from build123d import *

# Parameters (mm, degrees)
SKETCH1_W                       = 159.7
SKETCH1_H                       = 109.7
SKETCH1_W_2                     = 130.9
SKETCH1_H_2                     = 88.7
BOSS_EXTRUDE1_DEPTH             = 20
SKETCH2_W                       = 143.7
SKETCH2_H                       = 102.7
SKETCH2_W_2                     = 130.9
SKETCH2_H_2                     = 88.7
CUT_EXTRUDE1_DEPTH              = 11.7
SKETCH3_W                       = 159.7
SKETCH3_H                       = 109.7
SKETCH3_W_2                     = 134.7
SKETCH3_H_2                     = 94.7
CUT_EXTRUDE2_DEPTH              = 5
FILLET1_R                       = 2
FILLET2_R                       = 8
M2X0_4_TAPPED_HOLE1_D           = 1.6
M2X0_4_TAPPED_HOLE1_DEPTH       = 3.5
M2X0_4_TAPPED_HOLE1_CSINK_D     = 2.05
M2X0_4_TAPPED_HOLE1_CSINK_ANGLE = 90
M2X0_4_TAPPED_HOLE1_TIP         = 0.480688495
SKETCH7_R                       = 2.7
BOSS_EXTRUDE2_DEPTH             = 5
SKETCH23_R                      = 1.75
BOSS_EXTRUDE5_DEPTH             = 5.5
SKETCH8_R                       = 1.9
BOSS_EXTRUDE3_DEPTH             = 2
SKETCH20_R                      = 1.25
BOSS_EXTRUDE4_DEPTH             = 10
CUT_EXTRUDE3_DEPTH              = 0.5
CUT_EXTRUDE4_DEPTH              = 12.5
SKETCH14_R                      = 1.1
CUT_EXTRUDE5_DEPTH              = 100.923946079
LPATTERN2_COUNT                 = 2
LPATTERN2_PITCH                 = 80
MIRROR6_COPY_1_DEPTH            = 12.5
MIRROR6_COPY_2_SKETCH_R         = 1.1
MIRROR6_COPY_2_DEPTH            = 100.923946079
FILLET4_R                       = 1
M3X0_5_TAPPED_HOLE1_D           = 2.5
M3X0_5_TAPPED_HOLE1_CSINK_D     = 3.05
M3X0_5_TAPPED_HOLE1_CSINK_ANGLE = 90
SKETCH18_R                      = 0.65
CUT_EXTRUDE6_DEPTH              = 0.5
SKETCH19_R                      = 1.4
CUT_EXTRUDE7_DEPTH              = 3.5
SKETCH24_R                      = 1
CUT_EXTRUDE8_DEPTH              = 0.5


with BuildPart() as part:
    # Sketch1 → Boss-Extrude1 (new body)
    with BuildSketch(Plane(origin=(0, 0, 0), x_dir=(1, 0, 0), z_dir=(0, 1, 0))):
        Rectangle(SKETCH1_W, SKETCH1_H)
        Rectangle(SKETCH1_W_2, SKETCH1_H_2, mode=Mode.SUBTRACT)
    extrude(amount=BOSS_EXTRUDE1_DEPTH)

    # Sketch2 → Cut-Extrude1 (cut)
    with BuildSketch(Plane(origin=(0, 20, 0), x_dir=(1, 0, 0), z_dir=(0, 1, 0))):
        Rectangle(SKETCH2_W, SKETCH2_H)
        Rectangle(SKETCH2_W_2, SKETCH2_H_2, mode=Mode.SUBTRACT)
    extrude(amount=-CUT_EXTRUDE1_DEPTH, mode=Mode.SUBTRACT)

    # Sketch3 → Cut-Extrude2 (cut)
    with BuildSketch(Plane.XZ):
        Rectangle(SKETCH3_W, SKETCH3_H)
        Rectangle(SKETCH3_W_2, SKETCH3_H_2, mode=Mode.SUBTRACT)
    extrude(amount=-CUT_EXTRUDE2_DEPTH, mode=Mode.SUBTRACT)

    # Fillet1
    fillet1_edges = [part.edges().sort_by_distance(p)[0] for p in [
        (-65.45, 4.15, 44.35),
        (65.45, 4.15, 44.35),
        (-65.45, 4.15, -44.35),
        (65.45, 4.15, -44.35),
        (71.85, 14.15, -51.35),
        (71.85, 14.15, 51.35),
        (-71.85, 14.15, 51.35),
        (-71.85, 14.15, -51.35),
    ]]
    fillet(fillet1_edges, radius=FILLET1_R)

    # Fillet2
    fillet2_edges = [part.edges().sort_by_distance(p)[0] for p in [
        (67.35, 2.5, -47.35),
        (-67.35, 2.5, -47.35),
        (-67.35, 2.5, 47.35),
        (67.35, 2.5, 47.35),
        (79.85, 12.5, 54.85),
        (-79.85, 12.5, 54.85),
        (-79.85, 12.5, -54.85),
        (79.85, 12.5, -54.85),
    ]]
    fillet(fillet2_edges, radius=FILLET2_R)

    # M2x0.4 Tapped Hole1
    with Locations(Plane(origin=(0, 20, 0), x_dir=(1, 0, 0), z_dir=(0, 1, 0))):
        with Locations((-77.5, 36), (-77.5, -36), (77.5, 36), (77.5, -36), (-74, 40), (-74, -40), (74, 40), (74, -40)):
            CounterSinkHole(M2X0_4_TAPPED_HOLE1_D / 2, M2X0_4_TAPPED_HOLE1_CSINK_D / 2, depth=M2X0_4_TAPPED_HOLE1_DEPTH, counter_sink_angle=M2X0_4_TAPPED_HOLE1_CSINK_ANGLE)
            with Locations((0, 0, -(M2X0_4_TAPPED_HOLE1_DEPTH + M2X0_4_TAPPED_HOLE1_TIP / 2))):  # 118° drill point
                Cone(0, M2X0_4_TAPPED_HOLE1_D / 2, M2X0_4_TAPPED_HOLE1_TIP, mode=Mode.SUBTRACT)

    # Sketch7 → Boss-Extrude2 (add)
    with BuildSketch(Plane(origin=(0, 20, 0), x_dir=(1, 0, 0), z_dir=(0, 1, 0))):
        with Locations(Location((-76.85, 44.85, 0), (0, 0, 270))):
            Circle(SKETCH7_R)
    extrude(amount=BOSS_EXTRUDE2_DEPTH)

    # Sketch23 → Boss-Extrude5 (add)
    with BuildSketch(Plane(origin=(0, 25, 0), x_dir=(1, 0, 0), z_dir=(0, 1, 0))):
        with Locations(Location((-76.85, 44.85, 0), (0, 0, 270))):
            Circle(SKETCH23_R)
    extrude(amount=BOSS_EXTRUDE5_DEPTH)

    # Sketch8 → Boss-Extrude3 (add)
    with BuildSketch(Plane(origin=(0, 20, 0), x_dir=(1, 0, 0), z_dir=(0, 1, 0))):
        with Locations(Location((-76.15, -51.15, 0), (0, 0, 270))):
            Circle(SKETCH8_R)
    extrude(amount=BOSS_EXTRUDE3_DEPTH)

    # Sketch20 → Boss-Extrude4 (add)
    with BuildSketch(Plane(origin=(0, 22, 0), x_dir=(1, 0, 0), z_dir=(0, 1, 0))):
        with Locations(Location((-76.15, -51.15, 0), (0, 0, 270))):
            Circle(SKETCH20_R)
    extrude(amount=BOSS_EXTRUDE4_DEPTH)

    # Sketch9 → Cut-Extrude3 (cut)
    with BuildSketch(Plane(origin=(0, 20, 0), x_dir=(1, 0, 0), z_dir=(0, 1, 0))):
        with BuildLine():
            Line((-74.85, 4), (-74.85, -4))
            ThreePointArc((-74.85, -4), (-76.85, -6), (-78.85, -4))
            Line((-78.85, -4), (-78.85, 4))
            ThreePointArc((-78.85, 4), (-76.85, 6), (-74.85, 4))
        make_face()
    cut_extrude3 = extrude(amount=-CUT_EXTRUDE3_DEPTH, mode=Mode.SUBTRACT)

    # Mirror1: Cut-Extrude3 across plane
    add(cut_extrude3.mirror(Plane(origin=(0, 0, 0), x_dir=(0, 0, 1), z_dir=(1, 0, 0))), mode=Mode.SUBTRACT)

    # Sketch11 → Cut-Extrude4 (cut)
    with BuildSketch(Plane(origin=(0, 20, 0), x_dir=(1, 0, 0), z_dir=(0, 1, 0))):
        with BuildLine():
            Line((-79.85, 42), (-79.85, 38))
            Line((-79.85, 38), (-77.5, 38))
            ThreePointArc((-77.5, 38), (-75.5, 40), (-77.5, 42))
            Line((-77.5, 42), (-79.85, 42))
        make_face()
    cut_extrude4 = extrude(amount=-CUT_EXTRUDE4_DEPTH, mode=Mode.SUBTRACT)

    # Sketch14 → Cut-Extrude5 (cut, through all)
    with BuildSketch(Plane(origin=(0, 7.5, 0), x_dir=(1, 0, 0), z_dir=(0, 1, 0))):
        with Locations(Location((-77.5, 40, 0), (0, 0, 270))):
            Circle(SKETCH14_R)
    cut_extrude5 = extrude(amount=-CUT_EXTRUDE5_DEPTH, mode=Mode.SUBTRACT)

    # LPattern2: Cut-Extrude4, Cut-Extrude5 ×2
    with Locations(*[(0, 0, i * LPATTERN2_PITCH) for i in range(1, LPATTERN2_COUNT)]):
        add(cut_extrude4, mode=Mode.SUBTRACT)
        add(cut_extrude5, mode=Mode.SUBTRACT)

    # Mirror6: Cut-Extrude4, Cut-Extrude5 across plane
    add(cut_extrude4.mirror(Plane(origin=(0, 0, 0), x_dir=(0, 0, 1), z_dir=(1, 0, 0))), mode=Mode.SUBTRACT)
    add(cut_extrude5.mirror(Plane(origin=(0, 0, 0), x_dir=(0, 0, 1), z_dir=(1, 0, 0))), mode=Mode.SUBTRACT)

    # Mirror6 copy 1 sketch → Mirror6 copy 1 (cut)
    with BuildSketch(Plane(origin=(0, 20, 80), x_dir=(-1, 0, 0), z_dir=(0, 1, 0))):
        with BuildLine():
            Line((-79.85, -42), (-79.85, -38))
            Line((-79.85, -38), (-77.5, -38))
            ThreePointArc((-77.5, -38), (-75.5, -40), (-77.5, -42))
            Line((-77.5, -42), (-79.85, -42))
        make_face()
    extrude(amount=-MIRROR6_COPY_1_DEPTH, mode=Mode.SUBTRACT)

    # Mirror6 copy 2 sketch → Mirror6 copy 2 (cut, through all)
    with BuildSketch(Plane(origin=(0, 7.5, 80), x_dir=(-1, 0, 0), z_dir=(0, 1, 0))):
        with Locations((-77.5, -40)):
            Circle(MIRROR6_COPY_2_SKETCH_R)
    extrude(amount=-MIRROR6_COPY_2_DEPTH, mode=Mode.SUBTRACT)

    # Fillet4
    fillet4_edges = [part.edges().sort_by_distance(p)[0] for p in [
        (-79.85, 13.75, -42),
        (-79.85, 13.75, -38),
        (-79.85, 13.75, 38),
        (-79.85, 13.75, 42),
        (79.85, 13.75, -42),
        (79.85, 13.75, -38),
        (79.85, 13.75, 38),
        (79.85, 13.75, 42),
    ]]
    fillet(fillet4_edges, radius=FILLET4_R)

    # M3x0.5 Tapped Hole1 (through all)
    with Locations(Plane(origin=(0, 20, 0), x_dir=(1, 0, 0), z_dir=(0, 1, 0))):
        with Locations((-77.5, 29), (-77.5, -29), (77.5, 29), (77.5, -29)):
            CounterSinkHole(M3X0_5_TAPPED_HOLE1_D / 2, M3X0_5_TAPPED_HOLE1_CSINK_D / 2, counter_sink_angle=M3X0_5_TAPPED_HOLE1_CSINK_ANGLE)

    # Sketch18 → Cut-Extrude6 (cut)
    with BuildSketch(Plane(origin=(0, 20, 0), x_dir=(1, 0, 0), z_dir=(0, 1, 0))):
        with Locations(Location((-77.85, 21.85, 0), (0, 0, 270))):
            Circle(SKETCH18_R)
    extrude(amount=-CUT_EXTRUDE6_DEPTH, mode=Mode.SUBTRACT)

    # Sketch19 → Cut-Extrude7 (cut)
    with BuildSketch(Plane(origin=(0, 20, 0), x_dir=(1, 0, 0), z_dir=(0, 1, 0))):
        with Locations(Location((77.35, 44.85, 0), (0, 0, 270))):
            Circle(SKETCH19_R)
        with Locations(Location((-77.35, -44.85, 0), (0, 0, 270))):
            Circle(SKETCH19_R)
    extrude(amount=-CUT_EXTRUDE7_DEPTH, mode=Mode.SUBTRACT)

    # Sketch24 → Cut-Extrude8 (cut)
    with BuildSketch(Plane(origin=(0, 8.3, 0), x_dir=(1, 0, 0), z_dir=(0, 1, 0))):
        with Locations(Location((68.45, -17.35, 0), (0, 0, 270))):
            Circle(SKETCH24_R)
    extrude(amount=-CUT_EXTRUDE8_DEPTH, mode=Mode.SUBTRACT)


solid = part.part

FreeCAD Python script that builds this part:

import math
import FreeCAD as App
import Part
import Sketcher
Q = App.Units.Quantity


def edges_at(feature, points):
    """Names of the edges that pass closest to the given points."""
    edges = feature.Shape.Edges
    near = lambda p: min(range(len(edges)), key=lambda i: edges[i].distToShape(Part.Vertex(*p))[0])
    return sorted({f"Edge{near(p) + 1}" for p in points})


def add_polygon(sketch, points):
    """Adds a closed chain of lines whose ends are joined by coincident constraints."""
    first, n = sketch.GeometryCount, len(points)
    for a, b in zip(points, points[1:] + points[:1]):
        sketch.addGeometry(Part.LineSegment(App.Vector(*a, 0), App.Vector(*b, 0)), False)
    for i in range(n):
        sketch.addConstraint(Sketcher.Constraint("Coincident", first + i, 2, first + (i + 1) % n, 1))

doc = App.newDocument("Part")
params = doc.addObject("Spreadsheet::Sheet", "Params")
for row, (alias, value) in enumerate([
    ("sketch1_width", "159.7 mm"),
    ("sketch1_width2", "130.9 mm"),
    ("sketch1_height", "109.7 mm"),
    ("sketch1_height2", "88.7 mm"),
    ("pad1_length", "20 mm"),
    ("sketch2_width", "143.7 mm"),
    ("sketch2_width2", "130.9 mm"),
    ("sketch2_height", "102.7 mm"),
    ("sketch2_height2", "88.7 mm"),
    ("pocket1_length", "11.7 mm"),
    ("sketch3_width", "159.7 mm"),
    ("sketch3_width2", "134.7 mm"),
    ("sketch3_height", "109.7 mm"),
    ("sketch3_height2", "94.7 mm"),
    ("pocket2_length", "5 mm"),
    ("fillet_radius", "2 mm"),
    ("fillet2_radius", "8 mm"),
    ("sketch4_diameter", "1.6 mm"),
    ("hole_diameter", "1.6 mm"),
    ("hole_depth", "3.5 mm"),
    ("hole_csink_diameter", "2.05 mm"),
    ("sketch5_diameter", "5.4 mm"),
    ("pad2_length", "5 mm"),
    ("sketch6_diameter", "3.5 mm"),
    ("pad3_length", "5.5 mm"),
    ("sketch7_diameter", "3.8 mm"),
    ("pad4_length", "2 mm"),
    ("sketch8_diameter", "2.5 mm"),
    ("pad5_length", "10 mm"),
    ("sketch9_radius", "2 mm"),
    ("sketch9_height", "8 mm"),
    ("pocket3_length", "0.5 mm"),
    ("sketch10_radius", "2 mm"),
    ("sketch10_width", "2.35 mm"),
    ("pocket4_length", "12.5 mm"),
    ("sketch11_diameter", "2.2 mm"),
    ("linearpattern_pitch", "80 mm"),
    ("sketch12_radius", "2 mm"),
    ("sketch12_width", "2.35 mm"),
    ("pocket6_length", "12.5 mm"),
    ("sketch13_diameter", "2.2 mm"),
    ("fillet3_radius", "1 mm"),
    ("sketch14_diameter", "2.5 mm"),
    ("hole2_diameter", "2.5 mm"),
    ("hole2_csink_diameter", "3.05 mm"),
    ("sketch15_diameter", "1.3 mm"),
    ("pocket8_length", "0.5 mm"),
    ("sketch16_diameter", "2.8 mm"),
    ("pocket9_length", "3.5 mm"),
    ("sketch17_diameter", "2 mm"),
    ("pocket10_length", "0.5 mm"),
], start=1):
    params.set(f"A{row}", alias)
    params.set(f"B{row}", "=" + value)
    params.setAlias(f"B{row}", alias)

body = doc.addObject("PartDesign::Body", "Body")

# Sketch on XZ plane
sketch1 = body.newObject("Sketcher::SketchObject", "Sketch")
sketch1.AttachmentSupport = (doc.getObject("XZ_Plane"), [""])
sketch1.MapMode = "FlatFace"
add_polygon(sketch1, [(-79.85, -54.85), (-79.85, 54.85), (79.85, 54.85), (79.85, -54.85)])  # lines 0-3
add_polygon(sketch1, [(65.45, 44.35), (-65.45, 44.35), (-65.45, -44.35), (65.45, -44.35)])  # lines 4-7
sketch1.addConstraint(Sketcher.Constraint("Vertical", 0))
sketch1.addConstraint(Sketcher.Constraint("Horizontal", 1))
sketch1.addConstraint(Sketcher.Constraint("Vertical", 2))
sketch1.addConstraint(Sketcher.Constraint("Horizontal", 3))
sketch1.addConstraint(Sketcher.Constraint("Horizontal", 4))
sketch1.addConstraint(Sketcher.Constraint("Vertical", 5))
sketch1.addConstraint(Sketcher.Constraint("Horizontal", 6))
sketch1.addConstraint(Sketcher.Constraint("Vertical", 7))
sketch1.addConstraint(Sketcher.Constraint("Symmetric", 0, 2, 2, 2, -1, 1))
sketch1.addConstraint(Sketcher.Constraint("Symmetric", 4, 2, 6, 2, -1, 1))
sketch1.addConstraint(Sketcher.Constraint("DistanceX", 1, 1, 1, 2, Q("159.7 mm")))
sketch1.addConstraint(Sketcher.Constraint("DistanceX", 4, 2, 4, 1, Q("130.9 mm")))
sketch1.addConstraint(Sketcher.Constraint("DistanceY", 0, 1, 0, 2, Q("109.7 mm")))
sketch1.addConstraint(Sketcher.Constraint("DistanceY", 5, 2, 5, 1, Q("88.7 mm")))
sketch1.setExpression("Constraints[18]", "Params.sketch1_width")
sketch1.setExpression("Constraints[19]", "Params.sketch1_width2")
sketch1.setExpression("Constraints[20]", "Params.sketch1_height")
sketch1.setExpression("Constraints[21]", "Params.sketch1_height2")
pad1 = body.newObject("PartDesign::Pad", "Pad")
pad1.Profile = sketch1
pad1.setExpression("Length", "Params.pad1_length")
pad1.Reversed = True

# Sketch on XZ plane
sketch2 = body.newObject("Sketcher::SketchObject", "Sketch001")
sketch2.AttachmentSupport = (doc.getObject("XZ_Plane"), [""])
sketch2.MapMode = "FlatFace"
sketch2.AttachmentOffset = App.Placement(App.Vector(0, 0, -20), App.Rotation())
add_polygon(sketch2, [(-71.85, -51.35), (-71.85, 51.35), (71.85, 51.35), (71.85, -51.35)])  # lines 0-3
add_polygon(sketch2, [(65.45, 44.35), (-65.45, 44.35), (-65.45, -44.35), (65.45, -44.35)])  # lines 4-7
sketch2.addConstraint(Sketcher.Constraint("Vertical", 0))
sketch2.addConstraint(Sketcher.Constraint("Horizontal", 1))
sketch2.addConstraint(Sketcher.Constraint("Vertical", 2))
sketch2.addConstraint(Sketcher.Constraint("Horizontal", 3))
sketch2.addConstraint(Sketcher.Constraint("Horizontal", 4))
sketch2.addConstraint(Sketcher.Constraint("Vertical", 5))
sketch2.addConstraint(Sketcher.Constraint("Horizontal", 6))
sketch2.addConstraint(Sketcher.Constraint("Vertical", 7))
sketch2.addConstraint(Sketcher.Constraint("Symmetric", 0, 2, 2, 2, -1, 1))
sketch2.addConstraint(Sketcher.Constraint("Symmetric", 4, 2, 6, 2, -1, 1))
sketch2.addConstraint(Sketcher.Constraint("DistanceX", 1, 1, 1, 2, Q("143.7 mm")))
sketch2.addConstraint(Sketcher.Constraint("DistanceX", 4, 2, 4, 1, Q("130.9 mm")))
sketch2.addConstraint(Sketcher.Constraint("DistanceY", 0, 1, 0, 2, Q("102.7 mm")))
sketch2.addConstraint(Sketcher.Constraint("DistanceY", 5, 2, 5, 1, Q("88.7 mm")))
sketch2.setExpression("Constraints[18]", "Params.sketch2_width")
sketch2.setExpression("Constraints[19]", "Params.sketch2_width2")
sketch2.setExpression("Constraints[20]", "Params.sketch2_height")
sketch2.setExpression("Constraints[21]", "Params.sketch2_height2")
pocket1 = body.newObject("PartDesign::Pocket", "Pocket")
pocket1.Profile = sketch2
pocket1.setExpression("Length", "Params.pocket1_length")
pocket1.Reversed = True

# Sketch on XZ plane
sketch3 = body.newObject("Sketcher::SketchObject", "Sketch002")
sketch3.AttachmentSupport = (doc.getObject("XZ_Plane"), [""])
sketch3.MapMode = "FlatFace"
add_polygon(sketch3, [(-79.85, 54.85), (-79.85, -54.85), (79.85, -54.85), (79.85, 54.85)])  # lines 0-3
add_polygon(sketch3, [(67.35, -47.35), (-67.35, -47.35), (-67.35, 47.35), (67.35, 47.35)])  # lines 4-7
sketch3.addConstraint(Sketcher.Constraint("Vertical", 0))
sketch3.addConstraint(Sketcher.Constraint("Horizontal", 1))
sketch3.addConstraint(Sketcher.Constraint("Vertical", 2))
sketch3.addConstraint(Sketcher.Constraint("Horizontal", 3))
sketch3.addConstraint(Sketcher.Constraint("Horizontal", 4))
sketch3.addConstraint(Sketcher.Constraint("Vertical", 5))
sketch3.addConstraint(Sketcher.Constraint("Horizontal", 6))
sketch3.addConstraint(Sketcher.Constraint("Vertical", 7))
sketch3.addConstraint(Sketcher.Constraint("Symmetric", 0, 2, 2, 2, -1, 1))
sketch3.addConstraint(Sketcher.Constraint("Symmetric", 4, 2, 6, 2, -1, 1))
sketch3.addConstraint(Sketcher.Constraint("DistanceX", 1, 1, 1, 2, Q("159.7 mm")))
sketch3.addConstraint(Sketcher.Constraint("DistanceX", 4, 2, 4, 1, Q("134.7 mm")))
sketch3.addConstraint(Sketcher.Constraint("DistanceY", 0, 2, 0, 1, Q("109.7 mm")))
sketch3.addConstraint(Sketcher.Constraint("DistanceY", 5, 1, 5, 2, Q("94.7 mm")))
sketch3.setExpression("Constraints[18]", "Params.sketch3_width")
sketch3.setExpression("Constraints[19]", "Params.sketch3_width2")
sketch3.setExpression("Constraints[20]", "Params.sketch3_height")
sketch3.setExpression("Constraints[21]", "Params.sketch3_height2")
pocket2 = body.newObject("PartDesign::Pocket", "Pocket001")
pocket2.Profile = sketch3
pocket2.setExpression("Length", "Params.pocket2_length")
doc.recompute()

fillet = body.newObject("PartDesign::Fillet", "Fillet")
fillet.Base = (pocket2, edges_at(pocket2, [
    (-65.45, 4.15, 44.35),
    (65.45, 4.15, 44.35),
    (-65.45, 4.15, -44.35),
    (65.45, 4.15, -44.35),
    (71.85, 14.15, -51.35),
    (71.85, 14.15, 51.35),
    (-71.85, 14.15, 51.35),
    (-71.85, 14.15, -51.35),
]))
fillet.setExpression("Radius", "Params.fillet_radius")
doc.recompute()

fillet2 = body.newObject("PartDesign::Fillet", "Fillet001")
fillet2.Base = (fillet, edges_at(fillet, [
    (67.35, 2.5, -47.35),
    (-67.35, 2.5, -47.35),
    (-67.35, 2.5, 47.35),
    (67.35, 2.5, 47.35),
    (79.85, 12.5, 54.85),
    (-79.85, 12.5, 54.85),
    (-79.85, 12.5, -54.85),
    (79.85, 12.5, -54.85),
]))
fillet2.setExpression("Radius", "Params.fillet2_radius")

# Sketch on XZ plane
sketch4 = body.newObject("Sketcher::SketchObject", "Sketch003")
sketch4.AttachmentSupport = (doc.getObject("XZ_Plane"), [""])
sketch4.MapMode = "FlatFace"
sketch4.AttachmentOffset = App.Placement(App.Vector(0, 0, -20), App.Rotation())
sketch4.addGeometry(Part.Circle(App.Vector(-77.5, -36, 0), App.Vector(0, 0, 1), 0.8), False)
sketch4.addGeometry(Part.Circle(App.Vector(-77.5, 36, 0), App.Vector(0, 0, 1), 0.8), False)
sketch4.addGeometry(Part.Circle(App.Vector(77.5, -36, 0), App.Vector(0, 0, 1), 0.8), False)
sketch4.addGeometry(Part.Circle(App.Vector(77.5, 36, 0), App.Vector(0, 0, 1), 0.8), False)
sketch4.addGeometry(Part.Circle(App.Vector(-74, -40, 0), App.Vector(0, 0, 1), 0.8), False)
sketch4.addGeometry(Part.Circle(App.Vector(-74, 40, 0), App.Vector(0, 0, 1), 0.8), False)
sketch4.addGeometry(Part.Circle(App.Vector(74, -40, 0), App.Vector(0, 0, 1), 0.8), False)
sketch4.addGeometry(Part.Circle(App.Vector(74, 40, 0), App.Vector(0, 0, 1), 0.8), False)
sketch4.addConstraint(Sketcher.Constraint("Equal", 0, 1))
sketch4.addConstraint(Sketcher.Constraint("Equal", 1, 2))
sketch4.addConstraint(Sketcher.Constraint("Equal", 2, 3))
sketch4.addConstraint(Sketcher.Constraint("Equal", 3, 4))
sketch4.addConstraint(Sketcher.Constraint("Equal", 4, 5))
sketch4.addConstraint(Sketcher.Constraint("Equal", 5, 6))
sketch4.addConstraint(Sketcher.Constraint("Equal", 6, 7))
sketch4.addConstraint(Sketcher.Constraint("Symmetric", 1, 3, 2, 3, -1, 1))
sketch4.addConstraint(Sketcher.Constraint("Symmetric", 0, 3, 3, 3, -1, 1))
sketch4.addConstraint(Sketcher.Constraint("Symmetric", 5, 3, 6, 3, -1, 1))
sketch4.addConstraint(Sketcher.Constraint("Symmetric", 4, 3, 7, 3, -1, 1))
sketch4.addConstraint(Sketcher.Constraint("Symmetric", 0, 3, 2, 3, -2))
sketch4.addConstraint(Sketcher.Constraint("Symmetric", 4, 3, 6, 3, -2))
sketch4.addConstraint(Sketcher.Constraint("Diameter", 0, Q("1.6 mm")))
sketch4.addConstraint(Sketcher.Constraint("DistanceY", 0, 3, -1, 1, Q("36 mm")))
sketch4.addConstraint(Sketcher.Constraint("DistanceX", 4, 3, -1, 1, Q("74 mm")))
sketch4.addConstraint(Sketcher.Constraint("DistanceY", 4, 3, -1, 1, Q("40 mm")))
sketch4.addConstraint(Sketcher.Constraint("DistanceX", 0, 3, 2, 3, Q("155 mm")))
sketch4.setExpression("Constraints[13]", "Params.sketch4_diameter")
doc.recompute()
hole = body.newObject("PartDesign::Hole", "Hole")
hole.Profile = sketch4
hole.ThreadType = "None"
hole.setExpression("Diameter", "Params.hole_diameter")
hole.DepthType = "Dimension"
hole.setExpression("Depth", "Params.hole_depth")
hole.DrillPoint = "Angled"
hole.DrillPointAngle = 118
hole.HoleCutType = "Countersink"
hole.setExpression("HoleCutDiameter", "Params.hole_csink_diameter")
hole.HoleCutCountersinkAngle = 90
hole.Reversed = True

# Sketch on XZ plane
sketch5 = body.newObject("Sketcher::SketchObject", "Sketch004")
sketch5.AttachmentSupport = (doc.getObject("XZ_Plane"), [""])
sketch5.MapMode = "FlatFace"
sketch5.AttachmentOffset = App.Placement(App.Vector(0, 0, -20), App.Rotation())
sketch5.addGeometry(Part.Circle(App.Vector(-76.85, -44.85, 0), App.Vector(0, 0, 1), 2.7), False)
sketch5.addConstraint(Sketcher.Constraint("Diameter", 0, Q("5.4 mm")))
sketch5.addConstraint(Sketcher.Constraint("DistanceX", 0, 3, -1, 1, Q("76.85 mm")))
sketch5.addConstraint(Sketcher.Constraint("DistanceY", 0, 3, -1, 1, Q("44.85 mm")))
sketch5.setExpression("Constraints[0]", "Params.sketch5_diameter")
pad2 = body.newObject("PartDesign::Pad", "Pad001")
pad2.Profile = sketch5
pad2.setExpression("Length", "Params.pad2_length")
pad2.Reversed = True

# Sketch on XZ plane
sketch6 = body.newObject("Sketcher::SketchObject", "Sketch005")
sketch6.AttachmentSupport = (doc.getObject("XZ_Plane"), [""])
sketch6.MapMode = "FlatFace"
sketch6.AttachmentOffset = App.Placement(App.Vector(0, 0, -25), App.Rotation())
sketch6.addGeometry(Part.Circle(App.Vector(-76.85, -44.85, 0), App.Vector(0, 0, 1), 1.75), False)
sketch6.addConstraint(Sketcher.Constraint("Diameter", 0, Q("3.5 mm")))
sketch6.addConstraint(Sketcher.Constraint("DistanceX", 0, 3, -1, 1, Q("76.85 mm")))
sketch6.addConstraint(Sketcher.Constraint("DistanceY", 0, 3, -1, 1, Q("44.85 mm")))
sketch6.setExpression("Constraints[0]", "Params.sketch6_diameter")
pad3 = body.newObject("PartDesign::Pad", "Pad002")
pad3.Profile = sketch6
pad3.setExpression("Length", "Params.pad3_length")
pad3.Reversed = True

# Sketch on XZ plane
sketch7 = body.newObject("Sketcher::SketchObject", "Sketch006")
sketch7.AttachmentSupport = (doc.getObject("XZ_Plane"), [""])
sketch7.MapMode = "FlatFace"
sketch7.AttachmentOffset = App.Placement(App.Vector(0, 0, -20), App.Rotation())
sketch7.addGeometry(Part.Circle(App.Vector(-76.15, 51.15, 0), App.Vector(0, 0, 1), 1.9), False)
sketch7.addConstraint(Sketcher.Constraint("Diameter", 0, Q("3.8 mm")))
sketch7.addConstraint(Sketcher.Constraint("DistanceX", 0, 3, -1, 1, Q("76.15 mm")))
sketch7.addConstraint(Sketcher.Constraint("DistanceY", -1, 1, 0, 3, Q("51.15 mm")))
sketch7.setExpression("Constraints[0]", "Params.sketch7_diameter")
pad4 = body.newObject("PartDesign::Pad", "Pad003")
pad4.Profile = sketch7
pad4.setExpression("Length", "Params.pad4_length")
pad4.Reversed = True

# Sketch on XZ plane
sketch8 = body.newObject("Sketcher::SketchObject", "Sketch007")
sketch8.AttachmentSupport = (doc.getObject("XZ_Plane"), [""])
sketch8.MapMode = "FlatFace"
sketch8.AttachmentOffset = App.Placement(App.Vector(0, 0, -22), App.Rotation())
sketch8.addGeometry(Part.Circle(App.Vector(-76.15, 51.15, 0), App.Vector(0, 0, 1), 1.25), False)
sketch8.addConstraint(Sketcher.Constraint("Diameter", 0, Q("2.5 mm")))
sketch8.addConstraint(Sketcher.Constraint("DistanceX", 0, 3, -1, 1, Q("76.15 mm")))
sketch8.addConstraint(Sketcher.Constraint("DistanceY", -1, 1, 0, 3, Q("51.15 mm")))
sketch8.setExpression("Constraints[0]", "Params.sketch8_diameter")
pad5 = body.newObject("PartDesign::Pad", "Pad004")
pad5.Profile = sketch8
pad5.setExpression("Length", "Params.pad5_length")
pad5.Reversed = True

# Sketch on XZ plane
sketch9 = body.newObject("Sketcher::SketchObject", "Sketch008")
sketch9.AttachmentSupport = (doc.getObject("XZ_Plane"), [""])
sketch9.MapMode = "FlatFace"
sketch9.AttachmentOffset = App.Placement(App.Vector(0, 0, -20), App.Rotation())
sketch9.addGeometry(Part.LineSegment(App.Vector(-74.85, 4, 0), App.Vector(-74.85, -4, 0)), False)
sketch9.addGeometry(Part.ArcOfCircle(Part.Circle(App.Vector(-76.85, -4, 0), App.Vector(0, 0, 1), 2), math.radians(180), math.radians(360)), False)
sketch9.addGeometry(Part.LineSegment(App.Vector(-78.85, -4, 0), App.Vector(-78.85, 4, 0)), False)
sketch9.addGeometry(Part.ArcOfCircle(Part.Circle(App.Vector(-76.85, 4, 0), App.Vector(0, 0, 1), 2), math.radians(0), math.radians(180)), False)
sketch9.addConstraint(Sketcher.Constraint("Tangent", 0, 2, 1, 2))
sketch9.addConstraint(Sketcher.Constraint("Tangent", 1, 1, 2, 1))
sketch9.addConstraint(Sketcher.Constraint("Tangent", 2, 2, 3, 2))
sketch9.addConstraint(Sketcher.Constraint("Tangent", 3, 1, 0, 1))
sketch9.addConstraint(Sketcher.Constraint("Vertical", 0))
sketch9.addConstraint(Sketcher.Constraint("Vertical", 2))
sketch9.addConstraint(Sketcher.Constraint("Radius", 1, Q("2 mm")))
sketch9.addConstraint(Sketcher.Constraint("DistanceY", 0, 2, 0, 1, Q("8 mm")))
sketch9.addConstraint(Sketcher.Constraint("DistanceY", 1, 3, -1, 1, Q("4 mm")))
sketch9.addConstraint(Sketcher.Constraint("DistanceX", 1, 3, -1, 1, Q("76.85 mm")))
sketch9.setExpression("Constraints[6]", "Params.sketch9_radius")
sketch9.setExpression("Constraints[7]", "Params.sketch9_height")
pocket3 = body.newObject("PartDesign::Pocket", "Pocket002")
pocket3.Profile = sketch9
pocket3.setExpression("Length", "Params.pocket3_length")
pocket3.Reversed = True
doc.recompute()

mirrored = body.newObject("PartDesign::Mirrored", "Mirrored")
mirrored.Originals = [pocket3]
mirrored.MirrorPlane = (doc.getObject("YZ_Plane"), [""])
body.Tip = mirrored

# Sketch on XZ plane
sketch10 = body.newObject("Sketcher::SketchObject", "Sketch009")
sketch10.AttachmentSupport = (doc.getObject("XZ_Plane"), [""])
sketch10.MapMode = "FlatFace"
sketch10.AttachmentOffset = App.Placement(App.Vector(0, 0, -20), App.Rotation())
sketch10.addGeometry(Part.LineSegment(App.Vector(-79.85, -42, 0), App.Vector(-79.85, -38, 0)), False)
sketch10.addGeometry(Part.LineSegment(App.Vector(-79.85, -38, 0), App.Vector(-77.5, -38, 0)), False)
sketch10.addGeometry(Part.ArcOfCircle(Part.Circle(App.Vector(-77.5, -40, 0), App.Vector(0, 0, 1), 2), math.radians(-90), math.radians(90)), False)
sketch10.addGeometry(Part.LineSegment(App.Vector(-77.5, -42, 0), App.Vector(-79.85, -42, 0)), False)
sketch10.addConstraint(Sketcher.Constraint("Coincident", 0, 2, 1, 1))
sketch10.addConstraint(Sketcher.Constraint("Tangent", 1, 2, 2, 2))
sketch10.addConstraint(Sketcher.Constraint("Tangent", 2, 1, 3, 1))
sketch10.addConstraint(Sketcher.Constraint("Coincident", 3, 2, 0, 1))
sketch10.addConstraint(Sketcher.Constraint("Vertical", 0))
sketch10.addConstraint(Sketcher.Constraint("Horizontal", 1))
sketch10.addConstraint(Sketcher.Constraint("Horizontal", 3))
sketch10.addConstraint(Sketcher.Constraint("Radius", 2, Q("2 mm")))
sketch10.addConstraint(Sketcher.Constraint("DistanceY", 2, 3, -1, 1, Q("40 mm")))
sketch10.addConstraint(Sketcher.Constraint("DistanceX", 1, 1, 1, 2, Q("2.35 mm")))
sketch10.addConstraint(Sketcher.Constraint("DistanceX", 2, 3, -1, 1, Q("77.5 mm")))
sketch10.setExpression("Constraints[7]", "Params.sketch10_radius")
sketch10.setExpression("Constraints[9]", "Params.sketch10_width")
pocket4 = body.newObject("PartDesign::Pocket", "Pocket003")
pocket4.Profile = sketch10
pocket4.setExpression("Length", "Params.pocket4_length")
pocket4.Reversed = True

# Sketch on XZ plane
sketch11 = body.newObject("Sketcher::SketchObject", "Sketch010")
sketch11.AttachmentSupport = (doc.getObject("XZ_Plane"), [""])
sketch11.MapMode = "FlatFace"
sketch11.AttachmentOffset = App.Placement(App.Vector(0, 0, -7.5), App.Rotation())
sketch11.addGeometry(Part.Circle(App.Vector(-77.5, -40, 0), App.Vector(0, 0, 1), 1.1), False)
sketch11.addConstraint(Sketcher.Constraint("Diameter", 0, Q("2.2 mm")))
sketch11.addConstraint(Sketcher.Constraint("DistanceY", 0, 3, -1, 1, Q("40 mm")))
sketch11.addConstraint(Sketcher.Constraint("DistanceX", 0, 3, -1, 1, Q("77.5 mm")))
sketch11.setExpression("Constraints[0]", "Params.sketch11_diameter")
pocket5 = body.newObject("PartDesign::Pocket", "Pocket004")
pocket5.Profile = sketch11
pocket5.Type = "ThroughAll"
pocket5.Reversed = True
doc.recompute()

linearpattern = body.newObject("PartDesign::LinearPattern", "LinearPattern")
linearpattern.Originals = [pocket4, pocket5]
linearpattern.Direction = (doc.getObject("Z_Axis"), [""])
linearpattern.Mode = "offset"
linearpattern.setExpression("Offset", "Params.linearpattern_pitch")
linearpattern.Occurrences = 2
body.Tip = linearpattern
doc.recompute()

mirrored2 = body.newObject("PartDesign::Mirrored", "Mirrored001")
mirrored2.Originals = [pocket4, pocket5]
mirrored2.MirrorPlane = (doc.getObject("YZ_Plane"), [""])
body.Tip = mirrored2

# Sketch on XZ plane
sketch12 = body.newObject("Sketcher::SketchObject", "Sketch011")
sketch12.AttachmentSupport = (doc.getObject("XZ_Plane"), [""])
sketch12.MapMode = "FlatFace"
sketch12.AttachmentOffset = App.Placement(App.Vector(0, 0, -20), App.Rotation())
sketch12.addGeometry(Part.LineSegment(App.Vector(79.85, 42, 0), App.Vector(79.85, 38, 0)), False)
sketch12.addGeometry(Part.LineSegment(App.Vector(79.85, 38, 0), App.Vector(77.5, 38, 0)), False)
sketch12.addGeometry(Part.ArcOfCircle(Part.Circle(App.Vector(77.5, 40, 0), App.Vector(0, 0, 1), 2), math.radians(90), math.radians(270)), False)
sketch12.addGeometry(Part.LineSegment(App.Vector(77.5, 42, 0), App.Vector(79.85, 42, 0)), False)
sketch12.addConstraint(Sketcher.Constraint("Coincident", 0, 2, 1, 1))
sketch12.addConstraint(Sketcher.Constraint("Tangent", 1, 2, 2, 2))
sketch12.addConstraint(Sketcher.Constraint("Tangent", 2, 1, 3, 1))
sketch12.addConstraint(Sketcher.Constraint("Coincident", 3, 2, 0, 1))
sketch12.addConstraint(Sketcher.Constraint("Vertical", 0))
sketch12.addConstraint(Sketcher.Constraint("Horizontal", 1))
sketch12.addConstraint(Sketcher.Constraint("Horizontal", 3))
sketch12.addConstraint(Sketcher.Constraint("Radius", 2, Q("2 mm")))
sketch12.addConstraint(Sketcher.Constraint("DistanceY", -1, 1, 2, 3, Q("40 mm")))
sketch12.addConstraint(Sketcher.Constraint("DistanceX", 1, 2, 1, 1, Q("2.35 mm")))
sketch12.addConstraint(Sketcher.Constraint("DistanceX", -1, 1, 2, 3, Q("77.5 mm")))
sketch12.setExpression("Constraints[7]", "Params.sketch12_radius")
sketch12.setExpression("Constraints[9]", "Params.sketch12_width")
pocket6 = body.newObject("PartDesign::Pocket", "Pocket005")
pocket6.Profile = sketch12
pocket6.setExpression("Length", "Params.pocket6_length")
pocket6.Reversed = True

# Sketch on XZ plane
sketch13 = body.newObject("Sketcher::SketchObject", "Sketch012")
sketch13.AttachmentSupport = (doc.getObject("XZ_Plane"), [""])
sketch13.MapMode = "FlatFace"
sketch13.AttachmentOffset = App.Placement(App.Vector(0, 0, -7.5), App.Rotation())
sketch13.addGeometry(Part.Circle(App.Vector(77.5, 40, 0), App.Vector(0, 0, 1), 1.1), False)
sketch13.addConstraint(Sketcher.Constraint("Diameter", 0, Q("2.2 mm")))
sketch13.addConstraint(Sketcher.Constraint("DistanceY", -1, 1, 0, 3, Q("40 mm")))
sketch13.addConstraint(Sketcher.Constraint("DistanceX", -1, 1, 0, 3, Q("77.5 mm")))
sketch13.setExpression("Constraints[0]", "Params.sketch13_diameter")
pocket7 = body.newObject("PartDesign::Pocket", "Pocket006")
pocket7.Profile = sketch13
pocket7.Type = "ThroughAll"
pocket7.Reversed = True
doc.recompute()

fillet3 = body.newObject("PartDesign::Fillet", "Fillet002")
fillet3.Base = (pocket7, edges_at(pocket7, [
    (-79.85, 13.75, -42),
    (-79.85, 13.75, -38),
    (-79.85, 13.75, 38),
    (-79.85, 13.75, 42),
    (79.85, 13.75, -42),
    (79.85, 13.75, -38),
    (79.85, 13.75, 38),
    (79.85, 13.75, 42),
]))
fillet3.setExpression("Radius", "Params.fillet3_radius")

# Sketch on XZ plane
sketch14 = body.newObject("Sketcher::SketchObject", "Sketch013")
sketch14.AttachmentSupport = (doc.getObject("XZ_Plane"), [""])
sketch14.MapMode = "FlatFace"
sketch14.AttachmentOffset = App.Placement(App.Vector(0, 0, -20), App.Rotation())
sketch14.addGeometry(Part.Circle(App.Vector(-77.5, -29, 0), App.Vector(0, 0, 1), 1.25), False)
sketch14.addGeometry(Part.Circle(App.Vector(-77.5, 29, 0), App.Vector(0, 0, 1), 1.25), False)
sketch14.addGeometry(Part.Circle(App.Vector(77.5, -29, 0), App.Vector(0, 0, 1), 1.25), False)
sketch14.addGeometry(Part.Circle(App.Vector(77.5, 29, 0), App.Vector(0, 0, 1), 1.25), False)
sketch14.addConstraint(Sketcher.Constraint("Equal", 0, 1))
sketch14.addConstraint(Sketcher.Constraint("Equal", 1, 2))
sketch14.addConstraint(Sketcher.Constraint("Equal", 2, 3))
sketch14.addConstraint(Sketcher.Constraint("Symmetric", 1, 3, 2, 3, -1, 1))
sketch14.addConstraint(Sketcher.Constraint("Symmetric", 0, 3, 3, 3, -1, 1))
sketch14.addConstraint(Sketcher.Constraint("Symmetric", 0, 3, 2, 3, -2))
sketch14.addConstraint(Sketcher.Constraint("Diameter", 0, Q("2.5 mm")))
sketch14.addConstraint(Sketcher.Constraint("DistanceY", 0, 3, -1, 1, Q("29 mm")))
sketch14.addConstraint(Sketcher.Constraint("DistanceX", 0, 3, 2, 3, Q("155 mm")))
sketch14.setExpression("Constraints[6]", "Params.sketch14_diameter")
doc.recompute()
hole2 = body.newObject("PartDesign::Hole", "Hole001")
hole2.Profile = sketch14
hole2.ThreadType = "None"
hole2.setExpression("Diameter", "Params.hole2_diameter")
hole2.DepthType = "ThroughAll"
hole2.HoleCutType = "Countersink"
hole2.setExpression("HoleCutDiameter", "Params.hole2_csink_diameter")
hole2.HoleCutCountersinkAngle = 90
hole2.Reversed = True

# Sketch on XZ plane
sketch15 = body.newObject("Sketcher::SketchObject", "Sketch014")
sketch15.AttachmentSupport = (doc.getObject("XZ_Plane"), [""])
sketch15.MapMode = "FlatFace"
sketch15.AttachmentOffset = App.Placement(App.Vector(0, 0, -20), App.Rotation())
sketch15.addGeometry(Part.Circle(App.Vector(-77.85, -21.85, 0), App.Vector(0, 0, 1), 0.65), False)
sketch15.addConstraint(Sketcher.Constraint("Diameter", 0, Q("1.3 mm")))
sketch15.addConstraint(Sketcher.Constraint("DistanceX", 0, 3, -1, 1, Q("77.85 mm")))
sketch15.addConstraint(Sketcher.Constraint("DistanceY", 0, 3, -1, 1, Q("21.85 mm")))
sketch15.setExpression("Constraints[0]", "Params.sketch15_diameter")
pocket8 = body.newObject("PartDesign::Pocket", "Pocket007")
pocket8.Profile = sketch15
pocket8.setExpression("Length", "Params.pocket8_length")
pocket8.Reversed = True

# Sketch on XZ plane
sketch16 = body.newObject("Sketcher::SketchObject", "Sketch015")
sketch16.AttachmentSupport = (doc.getObject("XZ_Plane"), [""])
sketch16.MapMode = "FlatFace"
sketch16.AttachmentOffset = App.Placement(App.Vector(0, 0, -20), App.Rotation())
sketch16.addGeometry(Part.Circle(App.Vector(77.35, -44.85, 0), App.Vector(0, 0, 1), 1.4), False)
sketch16.addGeometry(Part.Circle(App.Vector(-77.35, 44.85, 0), App.Vector(0, 0, 1), 1.4), False)
sketch16.addConstraint(Sketcher.Constraint("Equal", 0, 1))
sketch16.addConstraint(Sketcher.Constraint("Symmetric", 0, 3, 1, 3, -1, 1))
sketch16.addConstraint(Sketcher.Constraint("Diameter", 0, Q("2.8 mm")))
sketch16.addConstraint(Sketcher.Constraint("DistanceX", 1, 3, 0, 3, Q("154.7 mm")))
sketch16.addConstraint(Sketcher.Constraint("DistanceY", 0, 3, 1, 3, Q("89.7 mm")))
sketch16.setExpression("Constraints[2]", "Params.sketch16_diameter")
pocket9 = body.newObject("PartDesign::Pocket", "Pocket008")
pocket9.Profile = sketch16
pocket9.setExpression("Length", "Params.pocket9_length")
pocket9.Reversed = True

# Sketch on XZ plane
sketch17 = body.newObject("Sketcher::SketchObject", "Sketch016")
sketch17.AttachmentSupport = (doc.getObject("XZ_Plane"), [""])
sketch17.MapMode = "FlatFace"
sketch17.AttachmentOffset = App.Placement(App.Vector(0, 0, -8.3), App.Rotation())
sketch17.addGeometry(Part.Circle(App.Vector(68.45, 17.35, 0), App.Vector(0, 0, 1), 1), False)
sketch17.addConstraint(Sketcher.Constraint("Diameter", 0, Q("2 mm")))
sketch17.addConstraint(Sketcher.Constraint("DistanceX", -1, 1, 0, 3, Q("68.45 mm")))
sketch17.addConstraint(Sketcher.Constraint("DistanceY", -1, 1, 0, 3, Q("17.35 mm")))
sketch17.setExpression("Constraints[0]", "Params.sketch17_diameter")
pocket10 = body.newObject("PartDesign::Pocket", "Pocket009")
pocket10.Profile = sketch17
pocket10.setExpression("Length", "Params.pocket10_length")
pocket10.Reversed = True

doc.recompute()
